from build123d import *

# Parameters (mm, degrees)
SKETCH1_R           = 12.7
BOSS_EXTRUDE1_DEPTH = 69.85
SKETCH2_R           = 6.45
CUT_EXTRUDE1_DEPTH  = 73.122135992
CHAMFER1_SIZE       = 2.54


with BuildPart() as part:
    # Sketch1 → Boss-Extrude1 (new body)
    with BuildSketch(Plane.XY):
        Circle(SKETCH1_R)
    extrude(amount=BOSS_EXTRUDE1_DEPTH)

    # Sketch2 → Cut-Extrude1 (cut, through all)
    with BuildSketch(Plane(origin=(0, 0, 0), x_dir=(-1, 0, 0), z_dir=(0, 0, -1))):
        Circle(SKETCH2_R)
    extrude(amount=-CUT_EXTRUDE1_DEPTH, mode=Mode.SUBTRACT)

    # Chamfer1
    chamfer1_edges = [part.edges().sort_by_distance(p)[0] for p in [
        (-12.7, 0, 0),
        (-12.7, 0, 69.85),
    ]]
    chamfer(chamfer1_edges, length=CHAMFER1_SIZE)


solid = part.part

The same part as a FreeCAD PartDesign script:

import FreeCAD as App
import Part
import Sketcher
from FreeCAD import Vector
Q = App.Units.Quantity


def edges_at(feature, points):
    """Names of the edges that pass closest to the given points."""
    edges = feature.Shape.Edges
    near = lambda p: min(range(len(edges)), key=lambda i: edges[i].distToShape(Part.Vertex(*p))[0])
    return sorted({f"Edge{near(p) + 1}" for p in points})

doc = App.newDocument("Part")
params = doc.addObject("Spreadsheet::Sheet", "Params")
for row, (alias, value) in enumerate([
    ("sketch1_diameter", "1 in"),
    ("pad1_length", "2.75 in"),
    ("chamfer_size", "0.1 in"),
], start=1):
    params.set(f"A{row}", alias)
    params.set(f"B{row}", "=" + value)
    params.setAlias(f"B{row}", alias)

body = doc.addObject("PartDesign::Body", "Body")

# Sketch on XY plane
sketch1 = doc.addObject("Sketcher::SketchObject", "Sketch")
body.addObject(sketch1)
sketch1.AttachmentSupport = (doc.XY_Plane, [""])
sketch1.MapMode = "FlatFace"
sketch1.addGeometry(Part.Circle(Vector(0, 0, 0), Vector(0, 0, 1), 13), False)
sketch1.addConstraint([
    Sketcher.Constraint("Coincident", 0, 3, -1, 1),
    Sketcher.Constraint("Diameter", 0, Q("1 in")),
])
sketch1.setExpression("Constraints[1]", "Params.sketch1_diameter")
pad1 = doc.addObject("PartDesign::Pad", "Pad")
body.addObject(pad1)
pad1.Profile = sketch1
pad1.setExpression("Length", "Params.pad1_length")

# Sketch on XY plane
sketch2 = doc.addObject("Sketcher::SketchObject", "Sketch001")
body.addObject(sketch2)
sketch2.AttachmentSupport = (doc.XY_Plane, [""])
sketch2.MapMode = "FlatFace"
sketch2.addGeometry(Part.Circle(Vector(0, 0, 0), Vector(0, 0, 1), 6), False)
sketch2.addConstraint([
    Sketcher.Constraint("Coincident", 0, 3, -1, 1),
    Sketcher.Constraint("Diameter", 0, 12.9),
])
pocket1 = doc.addObject("PartDesign::Pocket", "Pocket")
body.addObject(pocket1)
pocket1.Profile = sketch2
pocket1.Type = "ThroughAll"
pocket1.Reversed = True
doc.recompute()

chamfer = doc.addObject("PartDesign::Chamfer", "Chamfer")
body.addObject(chamfer)
chamfer.Base = (pocket1, edges_at(pocket1, [(-12.7, 0, 0), (-12.7, 0, 69.85)]))
chamfer.setExpression("Size", "Params.chamfer_size")

doc.recompute()
